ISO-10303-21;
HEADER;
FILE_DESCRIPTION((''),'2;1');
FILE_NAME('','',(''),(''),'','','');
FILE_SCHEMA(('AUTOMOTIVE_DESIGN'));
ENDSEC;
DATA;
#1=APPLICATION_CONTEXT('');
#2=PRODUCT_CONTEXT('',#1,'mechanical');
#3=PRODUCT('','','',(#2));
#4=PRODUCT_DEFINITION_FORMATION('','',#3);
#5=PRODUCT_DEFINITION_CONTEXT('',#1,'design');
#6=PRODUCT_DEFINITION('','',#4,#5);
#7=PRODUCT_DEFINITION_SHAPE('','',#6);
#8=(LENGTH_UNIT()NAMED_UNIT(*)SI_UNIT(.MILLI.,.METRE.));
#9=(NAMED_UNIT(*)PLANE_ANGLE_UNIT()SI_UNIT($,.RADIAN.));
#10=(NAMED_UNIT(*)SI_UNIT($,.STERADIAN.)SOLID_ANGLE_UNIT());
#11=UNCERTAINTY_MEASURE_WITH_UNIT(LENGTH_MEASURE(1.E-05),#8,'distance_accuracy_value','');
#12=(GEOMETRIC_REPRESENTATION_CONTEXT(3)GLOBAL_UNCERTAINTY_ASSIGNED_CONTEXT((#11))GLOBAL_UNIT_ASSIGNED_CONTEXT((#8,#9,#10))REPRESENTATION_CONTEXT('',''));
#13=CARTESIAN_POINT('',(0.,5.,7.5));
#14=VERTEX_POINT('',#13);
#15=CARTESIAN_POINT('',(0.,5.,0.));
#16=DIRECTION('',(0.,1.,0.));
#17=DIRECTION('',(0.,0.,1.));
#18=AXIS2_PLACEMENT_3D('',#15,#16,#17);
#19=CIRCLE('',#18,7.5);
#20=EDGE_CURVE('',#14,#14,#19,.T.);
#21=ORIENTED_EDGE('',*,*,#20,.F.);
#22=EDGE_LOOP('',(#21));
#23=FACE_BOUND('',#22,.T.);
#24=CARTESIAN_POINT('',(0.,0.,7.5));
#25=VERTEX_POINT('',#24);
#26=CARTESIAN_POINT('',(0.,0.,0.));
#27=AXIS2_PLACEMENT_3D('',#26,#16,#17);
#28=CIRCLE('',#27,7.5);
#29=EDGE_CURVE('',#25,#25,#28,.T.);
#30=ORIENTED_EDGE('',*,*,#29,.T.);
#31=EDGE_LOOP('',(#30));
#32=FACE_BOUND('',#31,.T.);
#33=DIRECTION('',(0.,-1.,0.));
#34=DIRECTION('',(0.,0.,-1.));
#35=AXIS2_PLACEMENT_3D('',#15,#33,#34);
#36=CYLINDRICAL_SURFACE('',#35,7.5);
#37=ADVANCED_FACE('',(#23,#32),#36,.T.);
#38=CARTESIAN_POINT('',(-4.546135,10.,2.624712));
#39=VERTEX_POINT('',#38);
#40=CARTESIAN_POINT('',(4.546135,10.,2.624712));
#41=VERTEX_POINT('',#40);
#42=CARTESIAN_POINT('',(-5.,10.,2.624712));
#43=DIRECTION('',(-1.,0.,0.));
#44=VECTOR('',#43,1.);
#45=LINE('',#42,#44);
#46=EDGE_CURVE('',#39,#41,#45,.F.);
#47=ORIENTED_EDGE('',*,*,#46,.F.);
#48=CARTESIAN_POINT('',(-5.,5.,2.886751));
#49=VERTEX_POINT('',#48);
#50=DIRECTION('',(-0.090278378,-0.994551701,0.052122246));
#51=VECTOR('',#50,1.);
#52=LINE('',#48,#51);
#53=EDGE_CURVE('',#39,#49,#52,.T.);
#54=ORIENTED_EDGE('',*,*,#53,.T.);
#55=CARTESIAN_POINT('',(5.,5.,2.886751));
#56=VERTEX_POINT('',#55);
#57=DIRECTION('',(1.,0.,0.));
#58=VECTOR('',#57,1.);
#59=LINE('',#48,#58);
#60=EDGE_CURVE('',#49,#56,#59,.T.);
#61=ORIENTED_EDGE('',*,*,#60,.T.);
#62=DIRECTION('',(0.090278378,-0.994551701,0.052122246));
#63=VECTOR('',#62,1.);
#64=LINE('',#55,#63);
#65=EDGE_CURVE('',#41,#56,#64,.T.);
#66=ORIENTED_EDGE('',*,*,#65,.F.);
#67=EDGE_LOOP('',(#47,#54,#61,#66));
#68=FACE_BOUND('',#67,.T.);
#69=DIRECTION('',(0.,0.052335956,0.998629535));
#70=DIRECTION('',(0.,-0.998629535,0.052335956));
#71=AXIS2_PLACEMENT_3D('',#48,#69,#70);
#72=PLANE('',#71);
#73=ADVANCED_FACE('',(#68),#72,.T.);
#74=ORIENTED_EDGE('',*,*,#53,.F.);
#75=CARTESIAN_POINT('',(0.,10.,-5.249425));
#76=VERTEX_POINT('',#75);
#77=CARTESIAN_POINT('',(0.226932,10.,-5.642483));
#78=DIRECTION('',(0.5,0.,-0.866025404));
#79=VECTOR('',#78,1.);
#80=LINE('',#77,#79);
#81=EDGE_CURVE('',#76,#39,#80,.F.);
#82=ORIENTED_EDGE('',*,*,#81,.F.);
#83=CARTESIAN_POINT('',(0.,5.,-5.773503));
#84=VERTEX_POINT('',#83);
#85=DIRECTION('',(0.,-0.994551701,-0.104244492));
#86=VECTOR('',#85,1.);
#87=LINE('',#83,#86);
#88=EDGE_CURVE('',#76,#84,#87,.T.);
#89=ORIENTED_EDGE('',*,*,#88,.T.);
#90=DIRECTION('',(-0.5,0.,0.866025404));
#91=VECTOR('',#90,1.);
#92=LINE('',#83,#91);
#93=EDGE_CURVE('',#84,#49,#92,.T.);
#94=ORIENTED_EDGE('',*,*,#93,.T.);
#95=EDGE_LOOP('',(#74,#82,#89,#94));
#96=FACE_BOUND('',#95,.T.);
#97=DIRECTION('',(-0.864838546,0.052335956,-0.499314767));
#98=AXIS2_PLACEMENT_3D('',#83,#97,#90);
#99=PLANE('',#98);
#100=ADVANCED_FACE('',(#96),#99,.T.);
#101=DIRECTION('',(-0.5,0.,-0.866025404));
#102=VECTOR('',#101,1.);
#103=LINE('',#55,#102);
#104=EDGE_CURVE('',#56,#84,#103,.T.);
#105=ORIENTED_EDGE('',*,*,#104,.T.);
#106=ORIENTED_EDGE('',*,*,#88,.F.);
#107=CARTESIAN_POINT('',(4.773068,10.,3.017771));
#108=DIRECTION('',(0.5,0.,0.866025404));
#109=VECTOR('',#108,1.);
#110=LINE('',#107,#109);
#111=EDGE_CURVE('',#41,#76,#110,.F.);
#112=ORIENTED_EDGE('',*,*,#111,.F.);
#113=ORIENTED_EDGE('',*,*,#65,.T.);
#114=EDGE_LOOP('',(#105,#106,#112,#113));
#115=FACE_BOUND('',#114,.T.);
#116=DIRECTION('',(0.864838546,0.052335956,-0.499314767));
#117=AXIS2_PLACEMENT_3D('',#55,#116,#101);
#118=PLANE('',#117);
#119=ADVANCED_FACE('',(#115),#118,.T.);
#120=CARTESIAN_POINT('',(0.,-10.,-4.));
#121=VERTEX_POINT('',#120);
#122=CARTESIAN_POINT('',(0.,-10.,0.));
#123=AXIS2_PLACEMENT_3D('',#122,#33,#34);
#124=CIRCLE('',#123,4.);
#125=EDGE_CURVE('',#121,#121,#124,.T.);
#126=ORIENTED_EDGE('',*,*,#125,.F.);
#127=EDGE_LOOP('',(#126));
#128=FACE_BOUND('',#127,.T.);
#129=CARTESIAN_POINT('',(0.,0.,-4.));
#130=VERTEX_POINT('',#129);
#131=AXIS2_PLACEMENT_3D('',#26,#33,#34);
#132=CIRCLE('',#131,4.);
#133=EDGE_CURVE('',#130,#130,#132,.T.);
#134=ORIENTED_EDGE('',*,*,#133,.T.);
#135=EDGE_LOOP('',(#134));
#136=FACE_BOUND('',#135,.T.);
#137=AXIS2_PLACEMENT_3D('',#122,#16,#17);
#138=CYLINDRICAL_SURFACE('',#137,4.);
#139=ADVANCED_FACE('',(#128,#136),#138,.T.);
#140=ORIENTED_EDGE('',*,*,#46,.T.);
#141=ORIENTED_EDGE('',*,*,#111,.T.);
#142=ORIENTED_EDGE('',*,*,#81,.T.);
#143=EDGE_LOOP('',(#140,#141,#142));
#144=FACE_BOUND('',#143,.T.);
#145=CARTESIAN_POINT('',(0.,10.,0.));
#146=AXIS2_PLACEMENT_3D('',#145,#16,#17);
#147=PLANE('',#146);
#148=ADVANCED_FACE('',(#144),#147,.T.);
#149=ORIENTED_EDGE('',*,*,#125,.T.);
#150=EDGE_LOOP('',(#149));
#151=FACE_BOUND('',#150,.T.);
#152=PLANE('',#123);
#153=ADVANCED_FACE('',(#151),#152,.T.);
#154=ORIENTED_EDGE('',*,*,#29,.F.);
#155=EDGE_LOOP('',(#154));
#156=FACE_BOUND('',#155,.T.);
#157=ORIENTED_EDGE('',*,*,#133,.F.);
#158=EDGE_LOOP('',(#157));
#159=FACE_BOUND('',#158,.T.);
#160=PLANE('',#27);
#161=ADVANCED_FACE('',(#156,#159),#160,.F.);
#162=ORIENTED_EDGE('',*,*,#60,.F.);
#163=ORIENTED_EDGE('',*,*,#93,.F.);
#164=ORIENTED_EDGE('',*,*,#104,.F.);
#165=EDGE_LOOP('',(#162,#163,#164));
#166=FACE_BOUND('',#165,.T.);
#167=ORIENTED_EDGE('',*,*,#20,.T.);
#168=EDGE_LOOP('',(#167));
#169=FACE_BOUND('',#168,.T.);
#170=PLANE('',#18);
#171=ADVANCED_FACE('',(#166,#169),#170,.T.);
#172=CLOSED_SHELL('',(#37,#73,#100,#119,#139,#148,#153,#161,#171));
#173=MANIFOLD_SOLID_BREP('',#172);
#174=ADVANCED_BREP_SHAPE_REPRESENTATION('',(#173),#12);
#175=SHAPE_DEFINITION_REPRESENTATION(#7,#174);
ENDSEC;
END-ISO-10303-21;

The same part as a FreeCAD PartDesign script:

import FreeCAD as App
import Part
import Sketcher
from FreeCAD import Vector
Q = App.Units.Quantity

doc = App.newDocument("Part")
params = doc.addObject("Spreadsheet::Sheet", "Params")
for row, (alias, value) in enumerate([
    ("sketch1_diameter", "15 mm"),
    ("pad1_length", "5 mm"),
    ("sketch2_width", "10 mm"),
    ("pad2_length", "5 mm"),
    ("pad2_taper", "-3 deg"),
    ("sketch3_diameter", "8 mm"),
    ("pad3_length", "10 mm"),
], start=1):
    params.set(f"A{row}", alias)
    params.set(f"B{row}", "=" + value)
    params.setAlias(f"B{row}", alias)

body = doc.addObject("PartDesign::Body", "Body")

# Sketch on XZ plane
sketch1 = doc.addObject("Sketcher::SketchObject", "Sketch")
body.addObject(sketch1)
sketch1.AttachmentSupport = (doc.XZ_Plane, [""])
sketch1.MapMode = "FlatFace"
sketch1.addGeometry(Part.Circle(Vector(0, 0, 0), Vector(0, 0, 1), 8), False)
sketch1.addConstraint(Sketcher.Constraint("Coincident", 0, 3, -1, 1))
sketch1.addConstraint(Sketcher.Constraint("Diameter", 0, 15.0))
sketch1.setExpression("Constraints[1]", "Params.sketch1_diameter")
pad1 = doc.addObject("PartDesign::Pad", "Pad")
body.addObject(pad1)
pad1.Profile = sketch1
pad1.setExpression("Length", "Params.pad1_length")
pad1.Reversed = True

# Sketch on XZ plane
sketch2 = doc.addObject("Sketcher::SketchObject", "Sketch001")
body.addObject(sketch2)
sketch2.AttachmentSupport = (doc.XZ_Plane, [""])
sketch2.MapMode = "FlatFace"
sketch2.AttachmentOffset = App.Placement(Vector(0, 0, -5), App.Rotation())
sketch2.addGeometry(Part.LineSegment(Vector(0, -6, 0), Vector(-5, 3, 0)), False)
sketch2.addGeometry(Part.LineSegment(Vector(-5, 3, 0), Vector(5, 3, 0)), False)
sketch2.addGeometry(Part.LineSegment(Vector(5, 3, 0), Vector(0, -6, 0)), False)
sketch2.addConstraint(Sketcher.Constraint("Coincident", 0, 2, 1, 1))
sketch2.addConstraint(Sketcher.Constraint("Coincident", 1, 2, 2, 1))
sketch2.addConstraint(Sketcher.Constraint("Coincident", 2, 2, 0, 1))
sketch2.addConstraint(Sketcher.Constraint("Horizontal", 1))
sketch2.addConstraint(Sketcher.Constraint("PointOnObject", 2, 2, -2))
sketch2.addConstraint(Sketcher.Constraint("Equal", 0, 2))
sketch2.addConstraint(Sketcher.Constraint("DistanceX", 1, 1, 1, 2, 10.0))
sketch2.addConstraint(Sketcher.Constraint("Angle", 0, Q("120 deg")))
sketch2.addConstraint(Sketcher.Constraint("DistanceY", -1, 1, 0, 2, 2.886751))
sketch2.setExpression("Constraints[6]", "Params.sketch2_width")
pad2 = doc.addObject("PartDesign::Pad", "Pad001")
body.addObject(pad2)
pad2.Profile = sketch2
pad2.setExpression("Length", "Params.pad2_length")
pad2.Reversed = True
pad2.setExpression("TaperAngle", "Params.pad2_taper")

# Sketch on XZ plane
sketch3 = doc.addObject("Sketcher::SketchObject", "Sketch002")
body.addObject(sketch3)
sketch3.AttachmentSupport = (doc.XZ_Plane, [""])
sketch3.MapMode = "FlatFace"
sketch3.addGeometry(Part.Circle(Vector(0, 0, 0), Vector(0, 0, 1), 4), False)
sketch3.addConstraint(Sketcher.Constraint("Coincident", 0, 3, -1, 1))
sketch3.addConstraint(Sketcher.Constraint("Diameter", 0, 8.0))
sketch3.setExpression("Constraints[1]", "Params.sketch3_diameter")
pad3 = doc.addObject("PartDesign::Pad", "Pad002")
body.addObject(pad3)
pad3.Profile = sketch3
pad3.setExpression("Length", "Params.pad3_length")

doc.recompute()
